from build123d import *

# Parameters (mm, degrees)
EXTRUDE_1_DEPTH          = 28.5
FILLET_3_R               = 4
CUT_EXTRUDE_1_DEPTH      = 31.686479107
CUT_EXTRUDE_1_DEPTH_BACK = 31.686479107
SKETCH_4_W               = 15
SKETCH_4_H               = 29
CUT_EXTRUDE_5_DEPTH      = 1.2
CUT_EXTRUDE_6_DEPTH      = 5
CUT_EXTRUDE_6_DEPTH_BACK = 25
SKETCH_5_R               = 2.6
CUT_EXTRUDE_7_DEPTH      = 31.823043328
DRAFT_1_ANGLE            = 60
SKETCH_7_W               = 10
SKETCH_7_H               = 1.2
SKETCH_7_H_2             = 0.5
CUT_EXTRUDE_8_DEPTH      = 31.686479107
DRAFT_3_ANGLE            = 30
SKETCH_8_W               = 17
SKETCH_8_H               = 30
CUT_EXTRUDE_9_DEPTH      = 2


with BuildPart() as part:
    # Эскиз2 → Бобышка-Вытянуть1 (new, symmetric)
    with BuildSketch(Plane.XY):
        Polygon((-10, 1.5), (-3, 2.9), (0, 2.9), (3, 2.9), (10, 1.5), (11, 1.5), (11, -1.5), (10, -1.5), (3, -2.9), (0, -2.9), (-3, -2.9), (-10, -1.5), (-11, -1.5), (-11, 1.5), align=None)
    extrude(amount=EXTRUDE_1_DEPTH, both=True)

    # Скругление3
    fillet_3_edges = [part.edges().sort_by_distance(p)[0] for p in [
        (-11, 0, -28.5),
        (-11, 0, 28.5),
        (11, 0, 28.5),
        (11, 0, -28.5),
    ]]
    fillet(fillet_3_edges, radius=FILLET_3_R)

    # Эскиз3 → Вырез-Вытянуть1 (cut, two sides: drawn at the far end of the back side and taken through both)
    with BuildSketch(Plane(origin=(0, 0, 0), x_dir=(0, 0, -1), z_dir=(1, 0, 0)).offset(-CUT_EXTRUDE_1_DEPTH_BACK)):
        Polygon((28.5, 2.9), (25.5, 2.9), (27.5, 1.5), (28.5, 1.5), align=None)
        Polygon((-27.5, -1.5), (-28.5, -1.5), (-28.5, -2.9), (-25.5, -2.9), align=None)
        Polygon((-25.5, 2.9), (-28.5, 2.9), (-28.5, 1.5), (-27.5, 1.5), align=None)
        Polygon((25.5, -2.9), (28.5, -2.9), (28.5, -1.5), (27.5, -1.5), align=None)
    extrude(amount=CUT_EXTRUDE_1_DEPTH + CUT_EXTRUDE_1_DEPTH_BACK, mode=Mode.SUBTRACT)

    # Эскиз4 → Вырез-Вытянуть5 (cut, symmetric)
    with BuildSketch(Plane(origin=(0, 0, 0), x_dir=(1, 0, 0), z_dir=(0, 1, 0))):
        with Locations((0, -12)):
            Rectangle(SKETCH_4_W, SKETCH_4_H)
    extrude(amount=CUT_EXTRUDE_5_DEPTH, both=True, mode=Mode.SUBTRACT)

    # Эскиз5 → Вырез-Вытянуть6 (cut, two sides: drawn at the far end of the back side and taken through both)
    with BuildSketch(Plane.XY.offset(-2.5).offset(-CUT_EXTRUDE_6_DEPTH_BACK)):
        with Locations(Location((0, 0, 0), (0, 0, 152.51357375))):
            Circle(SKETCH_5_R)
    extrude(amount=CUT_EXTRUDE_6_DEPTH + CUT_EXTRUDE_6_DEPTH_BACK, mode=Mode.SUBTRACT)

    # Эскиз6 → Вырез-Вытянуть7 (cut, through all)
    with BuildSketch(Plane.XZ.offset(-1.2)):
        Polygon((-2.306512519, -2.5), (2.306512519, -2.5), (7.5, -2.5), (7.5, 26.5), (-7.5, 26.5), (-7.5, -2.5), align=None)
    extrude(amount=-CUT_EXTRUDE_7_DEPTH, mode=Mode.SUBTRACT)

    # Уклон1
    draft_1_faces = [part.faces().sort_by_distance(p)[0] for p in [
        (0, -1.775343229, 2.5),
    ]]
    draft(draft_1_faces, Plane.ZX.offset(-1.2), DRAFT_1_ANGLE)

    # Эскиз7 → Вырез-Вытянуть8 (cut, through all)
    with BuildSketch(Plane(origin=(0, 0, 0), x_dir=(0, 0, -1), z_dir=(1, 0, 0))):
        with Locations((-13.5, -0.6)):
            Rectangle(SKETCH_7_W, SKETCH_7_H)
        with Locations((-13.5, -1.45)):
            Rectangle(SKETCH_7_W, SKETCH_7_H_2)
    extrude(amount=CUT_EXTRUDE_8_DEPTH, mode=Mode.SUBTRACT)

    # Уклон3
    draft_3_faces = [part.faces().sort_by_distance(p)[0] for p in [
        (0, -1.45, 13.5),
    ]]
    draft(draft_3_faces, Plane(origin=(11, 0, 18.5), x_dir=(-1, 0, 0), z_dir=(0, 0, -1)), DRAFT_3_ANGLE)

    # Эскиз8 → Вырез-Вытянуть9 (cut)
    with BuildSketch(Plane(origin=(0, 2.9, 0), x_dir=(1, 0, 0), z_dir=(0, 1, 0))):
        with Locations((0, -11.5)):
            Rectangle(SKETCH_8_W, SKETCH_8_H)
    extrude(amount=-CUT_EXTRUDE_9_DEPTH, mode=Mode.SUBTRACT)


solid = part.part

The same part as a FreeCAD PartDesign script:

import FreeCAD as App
import Part
import Sketcher
from FreeCAD import Vector
Q = App.Units.Quantity


def edges_at(feature, points):
    """Names of the edges that pass closest to the given points."""
    edges = feature.Shape.Edges
    near = lambda p: min(range(len(edges)), key=lambda i: edges[i].distToShape(Part.Vertex(*p))[0])
    return sorted({f"Edge{near(p) + 1}" for p in points})


def faces_at(feature, points):
    """Names of the faces that lie closest to the given points."""
    faces = feature.Shape.Faces
    near = lambda p: min(range(len(faces)), key=lambda i: faces[i].distToShape(Part.Vertex(*p))[0])
    return sorted({f"Face{near(p) + 1}" for p in points})

doc = App.newDocument("Part")
body = doc.addObject("PartDesign::Body", "Body")

# Sketch on XY plane
sketch1 = body.newObject("Sketcher::SketchObject", "Sketch")
sketch1.AttachmentSupport = (doc.getObject("XY_Plane"), [""])
sketch1.MapMode = "FlatFace"
sketch1.addGeometry([
    Part.LineSegment(Vector(-3, 2.9, 0), Vector(-10, 1.5, 0)),  # 0
    Part.LineSegment(Vector(-10, 1.5, 0), Vector(-11, 1.5, 0)),  # 1
    Part.LineSegment(Vector(-11, 1.5, 0), Vector(-11, -1.5, 0)),  # 2
    Part.LineSegment(Vector(-11, -1.5, 0), Vector(-10, -1.5, 0)),  # 3
    Part.LineSegment(Vector(-10, -1.5, 0), Vector(-3, -2.9, 0)),  # 4
    Part.LineSegment(Vector(-3, -2.9, 0), Vector(3, -2.9, 0)),  # 5
    Part.LineSegment(Vector(3, -2.9, 0), Vector(10, -1.5, 0)),  # 6
    Part.LineSegment(Vector(10, -1.5, 0), Vector(11, -1.5, 0)),  # 7
    Part.LineSegment(Vector(11, -1.5, 0), Vector(11, 1.5, 0)),  # 8
    Part.LineSegment(Vector(11, 1.5, 0), Vector(10, 1.5, 0)),  # 9
    Part.LineSegment(Vector(10, 1.5, 0), Vector(3, 2.9, 0)),  # 10
    Part.LineSegment(Vector(3, 2.9, 0), Vector(-3, 2.9, 0)),  # 11
], False)
sketch1.addConstraint([
    Sketcher.Constraint("Coincident", 0, 2, 1, 1),
    Sketcher.Constraint("Coincident", 1, 2, 2, 1),
    Sketcher.Constraint("Coincident", 2, 2, 3, 1),
    Sketcher.Constraint("Coincident", 3, 2, 4, 1),
    Sketcher.Constraint("Coincident", 4, 2, 5, 1),
    Sketcher.Constraint("Coincident", 5, 2, 6, 1),
    Sketcher.Constraint("Coincident", 6, 2, 7, 1),
    Sketcher.Constraint("Coincident", 7, 2, 8, 1),
    Sketcher.Constraint("Coincident", 8, 2, 9, 1),
    Sketcher.Constraint("Coincident", 9, 2, 10, 1),
    Sketcher.Constraint("Coincident", 10, 2, 11, 1),
    Sketcher.Constraint("Coincident", 11, 2, 0, 1),
    Sketcher.Constraint("Horizontal", 1),
    Sketcher.Constraint("Vertical", 2),
    Sketcher.Constraint("Horizontal", 3),
    Sketcher.Constraint("Horizontal", 5),
    Sketcher.Constraint("Horizontal", 7),
    Sketcher.Constraint("Vertical", 8),
    Sketcher.Constraint("Horizontal", 9),
    Sketcher.Constraint("Horizontal", 11),
    Sketcher.Constraint("Symmetric", 0, 2, 6, 2, -1, 1),
    Sketcher.Constraint("Symmetric", 2, 2, 8, 2, -1, 1),
    Sketcher.Constraint("Symmetric", 4, 2, 10, 2, -1, 1),
    Sketcher.Constraint("Symmetric", 3, 2, 6, 2, -2),
    Sketcher.Constraint("Parallel", 0, 6),
    Sketcher.Constraint("Parallel", 4, 10),
    Sketcher.Constraint("Vertical", 5, 2, 10, 2),
    Sketcher.Constraint("DistanceX", 1, 2, 1, 1, Q("1 mm")),
    Sketcher.Constraint("DistanceX", 5, 1, 5, 2, Q("6 mm")),
    Sketcher.Constraint("DistanceY", 2, 2, 2, 1, Q("3 mm")),
    Sketcher.Constraint("DistanceX", 0, 2, -1, 1, Q("10 mm")),
    Sketcher.Constraint("DistanceY", 4, 2, -1, 1, Q("2.9 mm")),
])
pad1 = body.newObject("PartDesign::Pad", "Pad")
pad1.Profile = sketch1
pad1.Length = 57
pad1.Midplane = True
doc.recompute()

fillet = body.newObject("PartDesign::Fillet", "Fillet")
fillet.Base = (pad1, edges_at(pad1, [
    (-11, 0, -28.5),
    (-11, 0, 28.5),
    (11, 0, 28.5),
    (11, 0, -28.5),
]))
fillet.Radius = 4

# Sketch on YZ plane
sketch2 = body.newObject("Sketcher::SketchObject", "Sketch001")
sketch2.AttachmentSupport = (doc.getObject("YZ_Plane"), [""])
sketch2.MapMode = "FlatFace"
sketch2.addGeometry([
    Part.LineSegment(Vector(2.9, -28.5, 0), Vector(2.9, -25.5, 0)),  # 0
    Part.LineSegment(Vector(2.9, -25.5, 0), Vector(1.5, -27.5, 0)),  # 1
    Part.LineSegment(Vector(1.5, -27.5, 0), Vector(1.5, -28.5, 0)),  # 2
    Part.LineSegment(Vector(1.5, -28.5, 0), Vector(2.9, -28.5, 0)),  # 3
    Part.LineSegment(Vector(-1.5, 27.5, 0), Vector(-1.5, 28.5, 0)),  # 4
    Part.LineSegment(Vector(-1.5, 28.5, 0), Vector(-2.9, 28.5, 0)),  # 5
    Part.LineSegment(Vector(-2.9, 28.5, 0), Vector(-2.9, 25.5, 0)),  # 6
    Part.LineSegment(Vector(-2.9, 25.5, 0), Vector(-1.5, 27.5, 0)),  # 7
    Part.LineSegment(Vector(2.9, 25.5, 0), Vector(2.9, 28.5, 0)),  # 8
    Part.LineSegment(Vector(2.9, 28.5, 0), Vector(1.5, 28.5, 0)),  # 9
    Part.LineSegment(Vector(1.5, 28.5, 0), Vector(1.5, 27.5, 0)),  # 10
    Part.LineSegment(Vector(1.5, 27.5, 0), Vector(2.9, 25.5, 0)),  # 11
    Part.LineSegment(Vector(-2.9, -25.5, 0), Vector(-2.9, -28.5, 0)),  # 12
    Part.LineSegment(Vector(-2.9, -28.5, 0), Vector(-1.5, -28.5, 0)),  # 13
    Part.LineSegment(Vector(-1.5, -28.5, 0), Vector(-1.5, -27.5, 0)),  # 14
    Part.LineSegment(Vector(-1.5, -27.5, 0), Vector(-2.9, -25.5, 0)),  # 15
], False)
sketch2.addConstraint([
    Sketcher.Constraint("Coincident", 0, 2, 1, 1),
    Sketcher.Constraint("Coincident", 1, 2, 2, 1),
    Sketcher.Constraint("Coincident", 2, 2, 3, 1),
    Sketcher.Constraint("Coincident", 3, 2, 0, 1),
    Sketcher.Constraint("Coincident", 4, 2, 5, 1),
    Sketcher.Constraint("Coincident", 5, 2, 6, 1),
    Sketcher.Constraint("Coincident", 6, 2, 7, 1),
    Sketcher.Constraint("Coincident", 7, 2, 4, 1),
    Sketcher.Constraint("Coincident", 8, 2, 9, 1),
    Sketcher.Constraint("Coincident", 9, 2, 10, 1),
    Sketcher.Constraint("Coincident", 10, 2, 11, 1),
    Sketcher.Constraint("Coincident", 11, 2, 8, 1),
    Sketcher.Constraint("Coincident", 12, 2, 13, 1),
    Sketcher.Constraint("Coincident", 13, 2, 14, 1),
    Sketcher.Constraint("Coincident", 14, 2, 15, 1),
    Sketcher.Constraint("Coincident", 15, 2, 12, 1),
    Sketcher.Constraint("Vertical", 0),
    Sketcher.Constraint("Vertical", 2),
    Sketcher.Constraint("Horizontal", 3),
    Sketcher.Constraint("Vertical", 4),
    Sketcher.Constraint("Horizontal", 5),
    Sketcher.Constraint("Vertical", 6),
    Sketcher.Constraint("Vertical", 8),
    Sketcher.Constraint("Horizontal", 9),
    Sketcher.Constraint("Vertical", 10),
    Sketcher.Constraint("Vertical", 12),
    Sketcher.Constraint("Horizontal", 13),
    Sketcher.Constraint("Vertical", 14),
    Sketcher.Constraint("Symmetric", 2, 2, 4, 2, -1, 1),
    Sketcher.Constraint("Symmetric", 0, 2, 6, 2, -1, 1),
    Sketcher.Constraint("Symmetric", 8, 2, 12, 2, -1, 1),
    Sketcher.Constraint("Symmetric", 10, 2, 14, 2, -1, 1),
    Sketcher.Constraint("Symmetric", 5, 2, 8, 2, -2),
    Sketcher.Constraint("Symmetric", 7, 2, 10, 2, -2),
    Sketcher.Constraint("Parallel", 1, 7),
    Sketcher.Constraint("Parallel", 11, 15),
    Sketcher.Constraint("Horizontal", 6, 2, 11, 2),
    Sketcher.Constraint("DistanceY", 0, 1, 0, 2, Q("3 mm")),
    Sketcher.Constraint("DistanceY", 2, 2, 2, 1, Q("1 mm")),
    Sketcher.Constraint("DistanceX", 3, 1, 3, 2, Q("1.4 mm")),
    Sketcher.Constraint("DistanceY", 0, 2, 4, 2, Q("54 mm")),
    Sketcher.Constraint("DistanceX", 4, 2, 1, 2, Q("3 mm")),
])
pocket1 = body.newObject("PartDesign::Pocket", "Pocket")
pocket1.Profile = sketch2
pocket1.Type = "ThroughAll"
pocket1.Midplane = True

# Sketch on XZ plane
sketch3 = body.newObject("Sketcher::SketchObject", "Sketch002")
sketch3.AttachmentSupport = (doc.getObject("XZ_Plane"), [""])
sketch3.MapMode = "FlatFace"
sketch3.addGeometry([
    Part.LineSegment(Vector(-8, -2, 0), Vector(-8, 26, 0)),
    Part.LineSegment(Vector(-8, 26, 0), Vector(8, 26, 0)),
    Part.LineSegment(Vector(8, 26, 0), Vector(8, -2, 0)),
    Part.LineSegment(Vector(8, -2, 0), Vector(-8, -2, 0)),
], False)
sketch3.addConstraint([
    Sketcher.Constraint("Coincident", 0, 2, 1, 1),
    Sketcher.Constraint("Coincident", 1, 2, 2, 1),
    Sketcher.Constraint("Coincident", 2, 2, 3, 1),
    Sketcher.Constraint("Coincident", 3, 2, 0, 1),
    Sketcher.Constraint("Vertical", 0),
    Sketcher.Constraint("Horizontal", 1),
    Sketcher.Constraint("Vertical", 2),
    Sketcher.Constraint("Horizontal", 3),
    Sketcher.Constraint("DistanceX", 1, 1, 1, 2, Q("15 mm")),
    Sketcher.Constraint("DistanceY", 0, 1, 0, 2, Q("29 mm")),
    Sketcher.Constraint("DistanceX", 0, 2, -1, 1, Q("7.5 mm")),
    Sketcher.Constraint("DistanceY", -1, 1, 0, 2, Q("26.5 mm")),
])
pocket2 = body.newObject("PartDesign::Pocket", "Pocket001")
pocket2.Profile = sketch3
pocket2.Length = 2.4
pocket2.Midplane = True

# Sketch on XY plane
sketch4 = body.newObject("Sketcher::SketchObject", "Sketch003")
sketch4.AttachmentSupport = (doc.getObject("XY_Plane"), [""])
sketch4.MapMode = "FlatFace"
sketch4.AttachmentOffset = App.Placement(Vector(0, 0, -2.5), App.Rotation())
sketch4.addGeometry(Part.Circle(Vector(0, 0, 0), Vector(0, 0, 1), 2.6), False)
sketch4.addConstraint([
    Sketcher.Constraint("Coincident", 0, 3, -1, 1),
    Sketcher.Constraint("Diameter", 0, Q("5.2 mm")),
])
pocket3 = body.newObject("PartDesign::Pocket", "Pocket002")
pocket3.Profile = sketch4
pocket3.Type = "TwoLengths"
pocket3.Length = 5
pocket3.Length2 = 25
pocket3.Reversed = True

# Sketch on XZ plane
sketch5 = body.newObject("Sketcher::SketchObject", "Sketch004")
sketch5.AttachmentSupport = (doc.getObject("XZ_Plane"), [""])
sketch5.MapMode = "FlatFace"
sketch5.AttachmentOffset = App.Placement(Vector(0, 0, -1.2), App.Rotation())
sketch5.addGeometry([
    Part.LineSegment(Vector(8, -2, 0), Vector(8, 26, 0)),
    Part.LineSegment(Vector(8, 26, 0), Vector(-8, 26, 0)),
    Part.LineSegment(Vector(-8, 26, 0), Vector(-8, -2, 0)),
    Part.LineSegment(Vector(-8, -2, 0), Vector(8, -2, 0)),
], False)
sketch5.addConstraint([
    Sketcher.Constraint("Coincident", 0, 2, 1, 1),
    Sketcher.Constraint("Coincident", 1, 2, 2, 1),
    Sketcher.Constraint("Coincident", 2, 2, 3, 1),
    Sketcher.Constraint("Coincident", 3, 2, 0, 1),
    Sketcher.Constraint("Vertical", 0),
    Sketcher.Constraint("Horizontal", 1),
    Sketcher.Constraint("Vertical", 2),
    Sketcher.Constraint("Horizontal", 3),
    Sketcher.Constraint("DistanceX", 1, 2, 1, 1, Q("15 mm")),
    Sketcher.Constraint("DistanceY", 0, 1, 0, 2, Q("29 mm")),
    Sketcher.Constraint("DistanceX", -1, 1, 0, 2, Q("7.5 mm")),
    Sketcher.Constraint("DistanceY", -1, 1, 0, 2, Q("26.5 mm")),
])
pocket4 = body.newObject("PartDesign::Pocket", "Pocket003")
pocket4.Profile = sketch5
pocket4.Type = "ThroughAll"
doc.recompute()

datumplane = body.newObject("PartDesign::Plane", "DatumPlane")
datumplane.AttachmentSupport = (doc.getObject("XZ_Plane"), [""])
datumplane.MapMode = "FlatFace"
datumplane.AttachmentOffset = App.Placement(Vector(0, 0, 1.2), App.Rotation())
draft = body.newObject("PartDesign::Draft", "Draft")
draft.Base = (pocket4, faces_at(pocket4, [(-0.109, -1.409, 2.5)]))
draft.NeutralPlane = (datumplane, [""])
draft.Angle = 60
draft.Reversed = True

# Sketch on YZ plane
sketch6 = body.newObject("Sketcher::SketchObject", "Sketch005")
sketch6.AttachmentSupport = (doc.getObject("YZ_Plane"), [""])
sketch6.MapMode = "FlatFace"
sketch6.addGeometry([
    Part.LineSegment(Vector(0, 18.5, 0), Vector(-1.7, 18.5, 0)),
    Part.LineSegment(Vector(-1.7, 18.5, 0), Vector(-1.7, 8.5, 0)),
    Part.LineSegment(Vector(-1.7, 8.5, 0), Vector(0, 8.5, 0)),
    Part.LineSegment(Vector(0, 8.5, 0), Vector(0, 18.5, 0)),
], False)
sketch6.addConstraint([
    Sketcher.Constraint("Coincident", 0, 2, 1, 1),
    Sketcher.Constraint("Coincident", 1, 2, 2, 1),
    Sketcher.Constraint("Coincident", 2, 2, 3, 1),
    Sketcher.Constraint("Coincident", 3, 2, 0, 1),
    Sketcher.Constraint("Horizontal", 0),
    Sketcher.Constraint("Vertical", 1),
    Sketcher.Constraint("Horizontal", 2),
    Sketcher.Constraint("Vertical", 3),
    Sketcher.Constraint("PointOnObject", 2, 2, -2),
    Sketcher.Constraint("DistanceY", 1, 2, 1, 1, Q("10 mm")),
    Sketcher.Constraint("DistanceX", 0, 2, 0, 1, Q("1.7 mm")),
    Sketcher.Constraint("DistanceY", -1, 1, 0, 2, Q("18.5 mm")),
])
pocket5 = body.newObject("PartDesign::Pocket", "Pocket004")
pocket5.Profile = sketch6
pocket5.Type = "ThroughAll"
pocket5.Reversed = True
doc.recompute()

datumplane2 = body.newObject("PartDesign::Plane", "DatumPlane001")
datumplane2.AttachmentSupport = (doc.getObject("XY_Plane"), [""])
datumplane2.MapMode = "FlatFace"
datumplane2.AttachmentOffset = App.Placement(Vector(0, 0, 18.5), App.Rotation())
draft2 = body.newObject("PartDesign::Draft", "Draft001")
draft2.Base = (pocket5, faces_at(pocket5, [(0, -1.45, 13.5)]))
draft2.NeutralPlane = (datumplane2, [""])
draft2.Angle = 30
draft2.Reversed = True

# Sketch on XZ plane
sketch7 = body.newObject("Sketcher::SketchObject", "Sketch006")
sketch7.AttachmentSupport = (doc.getObject("XZ_Plane"), [""])
sketch7.MapMode = "FlatFace"
sketch7.AttachmentOffset = App.Placement(Vector(0, 0, -2.9), App.Rotation())
sketch7.addGeometry([
    Part.LineSegment(Vector(-8, -4, 0), Vector(-8, 26, 0)),
    Part.LineSegment(Vector(-8, 26, 0), Vector(8, 26, 0)),
    Part.LineSegment(Vector(8, 26, 0), Vector(8, -4, 0)),
    Part.LineSegment(Vector(8, -4, 0), Vector(-8, -4, 0)),
], False)
sketch7.addConstraint([
    Sketcher.Constraint("Coincident", 0, 2, 1, 1),
    Sketcher.Constraint("Coincident", 1, 2, 2, 1),
    Sketcher.Constraint("Coincident", 2, 2, 3, 1),
    Sketcher.Constraint("Coincident", 3, 2, 0, 1),
    Sketcher.Constraint("Vertical", 0),
    Sketcher.Constraint("Horizontal", 1),
    Sketcher.Constraint("Vertical", 2),
    Sketcher.Constraint("Horizontal", 3),
    Sketcher.Constraint("DistanceX", 1, 1, 1, 2, Q("17 mm")),
    Sketcher.Constraint("DistanceY", 0, 1, 0, 2, Q("30 mm")),
    Sketcher.Constraint("DistanceX", 0, 2, -1, 1, Q("8.5 mm")),
    Sketcher.Constraint("DistanceY", -1, 1, 0, 2, Q("26.5 mm")),
])
pocket6 = body.newObject("PartDesign::Pocket", "Pocket005")
pocket6.Profile = sketch7
pocket6.Length = 2
pocket6.Reversed = True

doc.recompute()
